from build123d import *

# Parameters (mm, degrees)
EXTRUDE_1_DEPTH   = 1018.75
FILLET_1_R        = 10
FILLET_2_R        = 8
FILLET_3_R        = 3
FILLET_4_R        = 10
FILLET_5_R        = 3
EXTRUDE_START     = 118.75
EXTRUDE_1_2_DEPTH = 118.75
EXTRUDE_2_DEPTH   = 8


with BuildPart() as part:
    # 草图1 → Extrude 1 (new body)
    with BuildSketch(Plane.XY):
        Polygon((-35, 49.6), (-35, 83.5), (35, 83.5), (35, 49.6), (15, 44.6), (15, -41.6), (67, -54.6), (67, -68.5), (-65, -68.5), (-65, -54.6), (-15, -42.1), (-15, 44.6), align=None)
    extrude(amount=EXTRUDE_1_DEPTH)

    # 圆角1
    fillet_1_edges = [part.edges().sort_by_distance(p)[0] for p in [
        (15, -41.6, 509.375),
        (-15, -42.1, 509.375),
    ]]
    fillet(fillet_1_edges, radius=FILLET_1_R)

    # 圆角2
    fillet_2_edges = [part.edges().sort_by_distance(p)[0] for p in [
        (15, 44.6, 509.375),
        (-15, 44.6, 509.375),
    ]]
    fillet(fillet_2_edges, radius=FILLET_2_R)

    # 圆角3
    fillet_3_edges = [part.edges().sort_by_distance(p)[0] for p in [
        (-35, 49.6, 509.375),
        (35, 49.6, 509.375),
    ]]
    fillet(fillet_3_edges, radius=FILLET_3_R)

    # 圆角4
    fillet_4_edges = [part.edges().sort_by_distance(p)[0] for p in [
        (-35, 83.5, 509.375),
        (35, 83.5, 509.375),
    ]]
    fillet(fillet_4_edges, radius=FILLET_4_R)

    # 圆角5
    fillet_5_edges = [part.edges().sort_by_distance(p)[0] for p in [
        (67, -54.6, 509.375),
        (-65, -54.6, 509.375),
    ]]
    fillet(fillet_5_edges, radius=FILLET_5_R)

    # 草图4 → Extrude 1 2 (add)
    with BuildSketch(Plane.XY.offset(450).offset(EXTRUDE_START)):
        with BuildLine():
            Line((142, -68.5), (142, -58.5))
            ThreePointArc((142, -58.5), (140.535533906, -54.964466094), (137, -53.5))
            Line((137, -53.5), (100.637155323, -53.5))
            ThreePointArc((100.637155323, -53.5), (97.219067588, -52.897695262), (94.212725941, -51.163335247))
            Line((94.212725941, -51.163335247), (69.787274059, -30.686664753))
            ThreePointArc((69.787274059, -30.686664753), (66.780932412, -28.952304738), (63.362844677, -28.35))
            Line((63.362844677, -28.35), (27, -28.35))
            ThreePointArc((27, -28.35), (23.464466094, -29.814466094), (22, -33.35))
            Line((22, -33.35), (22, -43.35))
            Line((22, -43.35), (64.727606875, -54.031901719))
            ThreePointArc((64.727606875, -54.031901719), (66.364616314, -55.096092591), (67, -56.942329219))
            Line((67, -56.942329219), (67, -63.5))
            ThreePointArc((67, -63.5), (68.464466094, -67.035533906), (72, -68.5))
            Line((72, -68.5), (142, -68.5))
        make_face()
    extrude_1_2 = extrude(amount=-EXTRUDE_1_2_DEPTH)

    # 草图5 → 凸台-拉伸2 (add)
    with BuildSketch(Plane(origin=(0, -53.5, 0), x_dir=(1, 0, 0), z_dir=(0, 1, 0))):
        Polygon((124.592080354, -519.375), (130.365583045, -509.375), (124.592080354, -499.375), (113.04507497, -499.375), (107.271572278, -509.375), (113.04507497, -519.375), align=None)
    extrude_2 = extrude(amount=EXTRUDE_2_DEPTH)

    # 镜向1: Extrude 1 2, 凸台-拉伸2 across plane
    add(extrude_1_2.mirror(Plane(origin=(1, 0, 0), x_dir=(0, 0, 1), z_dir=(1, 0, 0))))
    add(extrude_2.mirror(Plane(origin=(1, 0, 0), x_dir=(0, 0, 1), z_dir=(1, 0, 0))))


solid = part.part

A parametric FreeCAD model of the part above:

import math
import FreeCAD as App
import Part
import Sketcher
Q = App.Units.Quantity


def edges_at(feature, points):
    """Names of the edges that pass closest to the given points."""
    edges = feature.Shape.Edges
    near = lambda p: min(range(len(edges)), key=lambda i: edges[i].distToShape(Part.Vertex(*p))[0])
    return sorted({f"Edge{near(p) + 1}" for p in points})

doc = App.newDocument("Part")
body = doc.addObject("PartDesign::Body", "Body")

# Sketch on XY plane
sketch1 = doc.addObject("Sketcher::SketchObject", "Sketch")
body.addObject(sketch1)
sketch1.AttachmentSupport = (doc.XY_Plane, [""])
sketch1.MapMode = "FlatFace"
sketch1.addGeometry([
    Part.LineSegment(App.Vector(-35, 84, 0), App.Vector(-35, 50, 0)),  # 0
    Part.LineSegment(App.Vector(-35, 50, 0), App.Vector(-15, 45, 0)),  # 1
    Part.LineSegment(App.Vector(-15, 45, 0), App.Vector(-15, -42, 0)),  # 2
    Part.LineSegment(App.Vector(-15, -42, 0), App.Vector(-65, -55, 0)),  # 3
    Part.LineSegment(App.Vector(-65, -55, 0), App.Vector(-65, -68, 0)),  # 4
    Part.LineSegment(App.Vector(-65, -68, 0), App.Vector(67, -68, 0)),  # 5
    Part.LineSegment(App.Vector(67, -68, 0), App.Vector(67, -55, 0)),  # 6
    Part.LineSegment(App.Vector(67, -55, 0), App.Vector(15, -42, 0)),  # 7
    Part.LineSegment(App.Vector(15, -42, 0), App.Vector(15, 45, 0)),  # 8
    Part.LineSegment(App.Vector(15, 45, 0), App.Vector(35, 50, 0)),  # 9
    Part.LineSegment(App.Vector(35, 50, 0), App.Vector(35, 84, 0)),  # 10
    Part.LineSegment(App.Vector(35, 84, 0), App.Vector(-35, 84, 0)),  # 11
], False)
sketch1.addConstraint([
    Sketcher.Constraint("Coincident", 0, 2, 1, 1),
    Sketcher.Constraint("Coincident", 1, 2, 2, 1),
    Sketcher.Constraint("Coincident", 2, 2, 3, 1),
    Sketcher.Constraint("Coincident", 3, 2, 4, 1),
    Sketcher.Constraint("Coincident", 4, 2, 5, 1),
    Sketcher.Constraint("Coincident", 5, 2, 6, 1),
    Sketcher.Constraint("Coincident", 6, 2, 7, 1),
    Sketcher.Constraint("Coincident", 7, 2, 8, 1),
    Sketcher.Constraint("Coincident", 8, 2, 9, 1),
    Sketcher.Constraint("Coincident", 9, 2, 10, 1),
    Sketcher.Constraint("Coincident", 10, 2, 11, 1),
    Sketcher.Constraint("Coincident", 11, 2, 0, 1),
    Sketcher.Constraint("Vertical", 0),
    Sketcher.Constraint("Vertical", 2),
    Sketcher.Constraint("Vertical", 4),
    Sketcher.Constraint("Horizontal", 5),
    Sketcher.Constraint("Vertical", 6),
    Sketcher.Constraint("Vertical", 8),
    Sketcher.Constraint("Vertical", 10),
    Sketcher.Constraint("Horizontal", 11),
    Sketcher.Constraint("Symmetric", 1, 2, 8, 2, -2),
    Sketcher.Constraint("Symmetric", 0, 2, 9, 2, -2),
    Sketcher.Constraint("Parallel", 1, 7),
    Sketcher.Constraint("Parallel", 3, 9),
    Sketcher.Constraint("Horizontal", 3, 2, 6, 2),
    Sketcher.Constraint("DistanceX", 5, 1, 5, 2, Q("132 mm")),
    Sketcher.Constraint("DistanceX", 11, 2, 11, 1, Q("70 mm")),
    Sketcher.Constraint("DistanceY", 0, 2, 0, 1, Q("33.9 mm")),
    Sketcher.Constraint("DistanceY", 2, 2, 2, 1, Q("86.7 mm")),
    Sketcher.Constraint("DistanceY", 4, 2, 4, 1, Q("13.9 mm")),
    Sketcher.Constraint("DistanceY", 8, 1, 8, 2, Q("86.2 mm")),
    Sketcher.Constraint("DistanceX", 1, 2, -1, 1, Q("15 mm")),
    Sketcher.Constraint("DistanceX", 3, 2, -1, 1, Q("65 mm")),
    Sketcher.Constraint("DistanceY", -1, 1, 0, 2, Q("49.6 mm")),
])
pad1 = doc.addObject("PartDesign::Pad", "Pad")
body.addObject(pad1)
pad1.Profile = sketch1
pad1.Length = 1018.75
doc.recompute()

fillet = doc.addObject("PartDesign::Fillet", "Fillet")
body.addObject(fillet)
fillet.Base = (pad1, edges_at(pad1, [(15, -41.6, 509.375), (-15, -42.1, 509.375)]))
fillet.Radius = 10
doc.recompute()

fillet2 = doc.addObject("PartDesign::Fillet", "Fillet001")
body.addObject(fillet2)
fillet2.Base = (fillet, edges_at(fillet, [(15, 44.6, 509.375), (-15, 44.6, 509.375)]))
fillet2.Radius = 8
doc.recompute()

fillet3 = doc.addObject("PartDesign::Fillet", "Fillet002")
body.addObject(fillet3)
fillet3.Base = (fillet2, edges_at(fillet2, [(-35, 49.6, 509.375), (35, 49.6, 509.375)]))
fillet3.Radius = 3
doc.recompute()

fillet4 = doc.addObject("PartDesign::Fillet", "Fillet003")
body.addObject(fillet4)
fillet4.Base = (fillet3, edges_at(fillet3, [(-35, 83.5, 509.375), (35, 83.5, 509.375)]))
fillet4.Radius = 10
doc.recompute()

fillet5 = doc.addObject("PartDesign::Fillet", "Fillet004")
body.addObject(fillet5)
fillet5.Base = (fillet4, edges_at(fillet4, [(67, -54.6, 509.375), (-65, -54.6, 509.375)]))
fillet5.Radius = 3

# Sketch on XY plane
sketch2 = doc.addObject("Sketcher::SketchObject", "Sketch001")
body.addObject(sketch2)
sketch2.AttachmentSupport = (doc.XY_Plane, [""])
sketch2.MapMode = "FlatFace"
sketch2.AttachmentOffset = App.Placement(App.Vector(0, 0, 568.75), App.Rotation())
sketch2.addGeometry([
    Part.LineSegment(App.Vector(142, -68.5, 0), App.Vector(142, -58.5, 0)),  # 0
    Part.ArcOfCircle(Part.Circle(App.Vector(137, -58.5, 0), App.Vector(0, 0, 1), 5), math.radians(0), math.radians(90)),  # 1
    Part.LineSegment(App.Vector(137, -53.5, 0), App.Vector(100.6, -53.5, 0)),  # 2
    Part.ArcOfCircle(Part.Circle(App.Vector(100.6, -43.5, 0), App.Vector(0, 0, 1), 10), math.radians(-130), math.radians(-90)),  # 3
    Part.LineSegment(App.Vector(94.2, -51.2, 0), App.Vector(69.8, -30.7, 0)),  # 4
    Part.ArcOfCircle(Part.Circle(App.Vector(63.4, -38.3, 0), App.Vector(0, 0, 1), 10), math.radians(50), math.radians(90)),  # 5
    Part.LineSegment(App.Vector(63.4, -28.4, 0), App.Vector(27, -28.4, 0)),  # 6
    Part.ArcOfCircle(Part.Circle(App.Vector(27, -33.4, 0), App.Vector(0, 0, 1), 5), math.radians(90), math.radians(180)),  # 7
    Part.LineSegment(App.Vector(22, -33.4, 0), App.Vector(22, -43.4, 0)),  # 8
    Part.LineSegment(App.Vector(22, -43.4, 0), App.Vector(64.7, -54, 0)),  # 9
    Part.ArcOfCircle(Part.Circle(App.Vector(64, -56.9, 0), App.Vector(0, 0, 1), 3), math.radians(0), math.radians(76)),  # 10
    Part.LineSegment(App.Vector(67, -56.9, 0), App.Vector(67, -63.5, 0)),  # 11
    Part.ArcOfCircle(Part.Circle(App.Vector(72, -63.5, 0), App.Vector(0, 0, 1), 5), math.radians(180), math.radians(270)),  # 12
    Part.LineSegment(App.Vector(72, -68.5, 0), App.Vector(142, -68.5, 0)),  # 13
], False)
sketch2.addConstraint([
    Sketcher.Constraint("Tangent", 0, 2, 1, 1),
    Sketcher.Constraint("Tangent", 1, 2, 2, 1),
    Sketcher.Constraint("Tangent", 2, 2, 3, 2),
    Sketcher.Constraint("Tangent", 3, 1, 4, 1),
    Sketcher.Constraint("Tangent", 4, 2, 5, 1),
    Sketcher.Constraint("Tangent", 5, 2, 6, 1),
    Sketcher.Constraint("Tangent", 6, 2, 7, 1),
    Sketcher.Constraint("Tangent", 7, 2, 8, 1),
    Sketcher.Constraint("Coincident", 8, 2, 9, 1),
    Sketcher.Constraint("Tangent", 9, 2, 10, 2),
    Sketcher.Constraint("Tangent", 10, 1, 11, 1),
    Sketcher.Constraint("Tangent", 11, 2, 12, 1),
    Sketcher.Constraint("Tangent", 12, 2, 13, 1),
    Sketcher.Constraint("Coincident", 13, 2, 0, 1),
    Sketcher.Constraint("Vertical", 0),
    Sketcher.Constraint("Horizontal", 2),
    Sketcher.Constraint("Horizontal", 6),
    Sketcher.Constraint("Vertical", 8),
    Sketcher.Constraint("Vertical", 11),
    Sketcher.Constraint("Horizontal", 13),
    Sketcher.Constraint("Equal", 3, 5),
    Sketcher.Constraint("Equal", 1, 7),
    Sketcher.Constraint("Equal", 7, 12),
    Sketcher.Constraint("Equal", 2, 6),
    Sketcher.Constraint("Equal", 0, 8),
    Sketcher.Constraint("Radius", 1, Q("5 mm")),
    Sketcher.Constraint("Radius", 3, Q("10 mm")),
    Sketcher.Constraint("Radius", 10, Q("3 mm")),
    Sketcher.Constraint("DistanceX", 13, 1, 13, 2, Q("70 mm")),
    Sketcher.Constraint("DistanceY", 0, 1, 0, 2, Q("10 mm")),
    Sketcher.Constraint("DistanceX", -1, 1, 1, 3, Q("137 mm")),
    Sketcher.Constraint("DistanceX", -1, 1, 7, 3, Q("27 mm")),
    Sketcher.Constraint("DistanceY", 1, 3, -1, 1, Q("58.5 mm")),
    Sketcher.Constraint("DistanceY", 5, 3, -1, 1, Q("38.35 mm")),
    Sketcher.Constraint("DistanceY", 11, 2, 11, 1, Q("6.557671 mm")),
    Sketcher.Constraint("DistanceX", 2, 2, 2, 1, Q("36.362845 mm")),
])
pad2 = doc.addObject("PartDesign::Pad", "Pad001")
body.addObject(pad2)
pad2.Profile = sketch2
pad2.Length = 118.75
pad2.Reversed = True

# Sketch on XZ plane
sketch3 = doc.addObject("Sketcher::SketchObject", "Sketch002")
body.addObject(sketch3)
sketch3.AttachmentSupport = (doc.XZ_Plane, [""])
sketch3.MapMode = "FlatFace"
sketch3.AttachmentOffset = App.Placement(App.Vector(0, 0, 53.5), App.Rotation())
sketch3.addGeometry([
    Part.LineSegment(App.Vector(125, 519, 0), App.Vector(130, 509, 0)),  # 0
    Part.LineSegment(App.Vector(130, 509, 0), App.Vector(125, 499, 0)),  # 1
    Part.LineSegment(App.Vector(125, 499, 0), App.Vector(113, 499, 0)),  # 2
    Part.LineSegment(App.Vector(113, 499, 0), App.Vector(107, 509, 0)),  # 3
    Part.LineSegment(App.Vector(107, 509, 0), App.Vector(113, 519, 0)),  # 4
    Part.LineSegment(App.Vector(113, 519, 0), App.Vector(125, 519, 0)),  # 5
], False)
sketch3.addConstraint([
    Sketcher.Constraint("Coincident", 0, 2, 1, 1),
    Sketcher.Constraint("Coincident", 1, 2, 2, 1),
    Sketcher.Constraint("Coincident", 2, 2, 3, 1),
    Sketcher.Constraint("Coincident", 3, 2, 4, 1),
    Sketcher.Constraint("Coincident", 4, 2, 5, 1),
    Sketcher.Constraint("Coincident", 5, 2, 0, 1),
    Sketcher.Constraint("Horizontal", 2),
    Sketcher.Constraint("Horizontal", 5),
    Sketcher.Constraint("Parallel", 0, 3),
    Sketcher.Constraint("Parallel", 1, 4),
    Sketcher.Constraint("Horizontal", 0, 2, 3, 2),
    Sketcher.Constraint("Vertical", 2, 2, 4, 2),
    Sketcher.Constraint("Vertical", 1, 2, 5, 2),
    Sketcher.Constraint("Angle", 0, Q("-60 deg")),
    Sketcher.Constraint("DistanceY", 1, 2, 0, 2, Q("10 mm")),
    Sketcher.Constraint("DistanceY", -1, 1, 0, 2, Q("509.375 mm")),
    Sketcher.Constraint("DistanceX", 2, 2, 2, 1, Q("11.547005 mm")),
    Sketcher.Constraint("DistanceX", -1, 1, 1, 2, Q("124.59208 mm")),
])
pad3 = doc.addObject("PartDesign::Pad", "Pad002")
body.addObject(pad3)
pad3.Profile = sketch3
pad3.Length = 8
pad3.Reversed = True
doc.recompute()

datumplane = doc.addObject("PartDesign::Plane", "DatumPlane")
body.addObject(datumplane)
datumplane.AttachmentSupport = (doc.YZ_Plane, [""])
datumplane.MapMode = "FlatFace"
datumplane.AttachmentOffset = App.Placement(App.Vector(0, 0, 1), App.Rotation())
mirrored = doc.addObject("PartDesign::Mirrored", "Mirrored")
body.addObject(mirrored)
mirrored.Originals = [pad2, pad3]
mirrored.MirrorPlane = (datumplane, [""])
body.Tip = mirrored

doc.recompute()
